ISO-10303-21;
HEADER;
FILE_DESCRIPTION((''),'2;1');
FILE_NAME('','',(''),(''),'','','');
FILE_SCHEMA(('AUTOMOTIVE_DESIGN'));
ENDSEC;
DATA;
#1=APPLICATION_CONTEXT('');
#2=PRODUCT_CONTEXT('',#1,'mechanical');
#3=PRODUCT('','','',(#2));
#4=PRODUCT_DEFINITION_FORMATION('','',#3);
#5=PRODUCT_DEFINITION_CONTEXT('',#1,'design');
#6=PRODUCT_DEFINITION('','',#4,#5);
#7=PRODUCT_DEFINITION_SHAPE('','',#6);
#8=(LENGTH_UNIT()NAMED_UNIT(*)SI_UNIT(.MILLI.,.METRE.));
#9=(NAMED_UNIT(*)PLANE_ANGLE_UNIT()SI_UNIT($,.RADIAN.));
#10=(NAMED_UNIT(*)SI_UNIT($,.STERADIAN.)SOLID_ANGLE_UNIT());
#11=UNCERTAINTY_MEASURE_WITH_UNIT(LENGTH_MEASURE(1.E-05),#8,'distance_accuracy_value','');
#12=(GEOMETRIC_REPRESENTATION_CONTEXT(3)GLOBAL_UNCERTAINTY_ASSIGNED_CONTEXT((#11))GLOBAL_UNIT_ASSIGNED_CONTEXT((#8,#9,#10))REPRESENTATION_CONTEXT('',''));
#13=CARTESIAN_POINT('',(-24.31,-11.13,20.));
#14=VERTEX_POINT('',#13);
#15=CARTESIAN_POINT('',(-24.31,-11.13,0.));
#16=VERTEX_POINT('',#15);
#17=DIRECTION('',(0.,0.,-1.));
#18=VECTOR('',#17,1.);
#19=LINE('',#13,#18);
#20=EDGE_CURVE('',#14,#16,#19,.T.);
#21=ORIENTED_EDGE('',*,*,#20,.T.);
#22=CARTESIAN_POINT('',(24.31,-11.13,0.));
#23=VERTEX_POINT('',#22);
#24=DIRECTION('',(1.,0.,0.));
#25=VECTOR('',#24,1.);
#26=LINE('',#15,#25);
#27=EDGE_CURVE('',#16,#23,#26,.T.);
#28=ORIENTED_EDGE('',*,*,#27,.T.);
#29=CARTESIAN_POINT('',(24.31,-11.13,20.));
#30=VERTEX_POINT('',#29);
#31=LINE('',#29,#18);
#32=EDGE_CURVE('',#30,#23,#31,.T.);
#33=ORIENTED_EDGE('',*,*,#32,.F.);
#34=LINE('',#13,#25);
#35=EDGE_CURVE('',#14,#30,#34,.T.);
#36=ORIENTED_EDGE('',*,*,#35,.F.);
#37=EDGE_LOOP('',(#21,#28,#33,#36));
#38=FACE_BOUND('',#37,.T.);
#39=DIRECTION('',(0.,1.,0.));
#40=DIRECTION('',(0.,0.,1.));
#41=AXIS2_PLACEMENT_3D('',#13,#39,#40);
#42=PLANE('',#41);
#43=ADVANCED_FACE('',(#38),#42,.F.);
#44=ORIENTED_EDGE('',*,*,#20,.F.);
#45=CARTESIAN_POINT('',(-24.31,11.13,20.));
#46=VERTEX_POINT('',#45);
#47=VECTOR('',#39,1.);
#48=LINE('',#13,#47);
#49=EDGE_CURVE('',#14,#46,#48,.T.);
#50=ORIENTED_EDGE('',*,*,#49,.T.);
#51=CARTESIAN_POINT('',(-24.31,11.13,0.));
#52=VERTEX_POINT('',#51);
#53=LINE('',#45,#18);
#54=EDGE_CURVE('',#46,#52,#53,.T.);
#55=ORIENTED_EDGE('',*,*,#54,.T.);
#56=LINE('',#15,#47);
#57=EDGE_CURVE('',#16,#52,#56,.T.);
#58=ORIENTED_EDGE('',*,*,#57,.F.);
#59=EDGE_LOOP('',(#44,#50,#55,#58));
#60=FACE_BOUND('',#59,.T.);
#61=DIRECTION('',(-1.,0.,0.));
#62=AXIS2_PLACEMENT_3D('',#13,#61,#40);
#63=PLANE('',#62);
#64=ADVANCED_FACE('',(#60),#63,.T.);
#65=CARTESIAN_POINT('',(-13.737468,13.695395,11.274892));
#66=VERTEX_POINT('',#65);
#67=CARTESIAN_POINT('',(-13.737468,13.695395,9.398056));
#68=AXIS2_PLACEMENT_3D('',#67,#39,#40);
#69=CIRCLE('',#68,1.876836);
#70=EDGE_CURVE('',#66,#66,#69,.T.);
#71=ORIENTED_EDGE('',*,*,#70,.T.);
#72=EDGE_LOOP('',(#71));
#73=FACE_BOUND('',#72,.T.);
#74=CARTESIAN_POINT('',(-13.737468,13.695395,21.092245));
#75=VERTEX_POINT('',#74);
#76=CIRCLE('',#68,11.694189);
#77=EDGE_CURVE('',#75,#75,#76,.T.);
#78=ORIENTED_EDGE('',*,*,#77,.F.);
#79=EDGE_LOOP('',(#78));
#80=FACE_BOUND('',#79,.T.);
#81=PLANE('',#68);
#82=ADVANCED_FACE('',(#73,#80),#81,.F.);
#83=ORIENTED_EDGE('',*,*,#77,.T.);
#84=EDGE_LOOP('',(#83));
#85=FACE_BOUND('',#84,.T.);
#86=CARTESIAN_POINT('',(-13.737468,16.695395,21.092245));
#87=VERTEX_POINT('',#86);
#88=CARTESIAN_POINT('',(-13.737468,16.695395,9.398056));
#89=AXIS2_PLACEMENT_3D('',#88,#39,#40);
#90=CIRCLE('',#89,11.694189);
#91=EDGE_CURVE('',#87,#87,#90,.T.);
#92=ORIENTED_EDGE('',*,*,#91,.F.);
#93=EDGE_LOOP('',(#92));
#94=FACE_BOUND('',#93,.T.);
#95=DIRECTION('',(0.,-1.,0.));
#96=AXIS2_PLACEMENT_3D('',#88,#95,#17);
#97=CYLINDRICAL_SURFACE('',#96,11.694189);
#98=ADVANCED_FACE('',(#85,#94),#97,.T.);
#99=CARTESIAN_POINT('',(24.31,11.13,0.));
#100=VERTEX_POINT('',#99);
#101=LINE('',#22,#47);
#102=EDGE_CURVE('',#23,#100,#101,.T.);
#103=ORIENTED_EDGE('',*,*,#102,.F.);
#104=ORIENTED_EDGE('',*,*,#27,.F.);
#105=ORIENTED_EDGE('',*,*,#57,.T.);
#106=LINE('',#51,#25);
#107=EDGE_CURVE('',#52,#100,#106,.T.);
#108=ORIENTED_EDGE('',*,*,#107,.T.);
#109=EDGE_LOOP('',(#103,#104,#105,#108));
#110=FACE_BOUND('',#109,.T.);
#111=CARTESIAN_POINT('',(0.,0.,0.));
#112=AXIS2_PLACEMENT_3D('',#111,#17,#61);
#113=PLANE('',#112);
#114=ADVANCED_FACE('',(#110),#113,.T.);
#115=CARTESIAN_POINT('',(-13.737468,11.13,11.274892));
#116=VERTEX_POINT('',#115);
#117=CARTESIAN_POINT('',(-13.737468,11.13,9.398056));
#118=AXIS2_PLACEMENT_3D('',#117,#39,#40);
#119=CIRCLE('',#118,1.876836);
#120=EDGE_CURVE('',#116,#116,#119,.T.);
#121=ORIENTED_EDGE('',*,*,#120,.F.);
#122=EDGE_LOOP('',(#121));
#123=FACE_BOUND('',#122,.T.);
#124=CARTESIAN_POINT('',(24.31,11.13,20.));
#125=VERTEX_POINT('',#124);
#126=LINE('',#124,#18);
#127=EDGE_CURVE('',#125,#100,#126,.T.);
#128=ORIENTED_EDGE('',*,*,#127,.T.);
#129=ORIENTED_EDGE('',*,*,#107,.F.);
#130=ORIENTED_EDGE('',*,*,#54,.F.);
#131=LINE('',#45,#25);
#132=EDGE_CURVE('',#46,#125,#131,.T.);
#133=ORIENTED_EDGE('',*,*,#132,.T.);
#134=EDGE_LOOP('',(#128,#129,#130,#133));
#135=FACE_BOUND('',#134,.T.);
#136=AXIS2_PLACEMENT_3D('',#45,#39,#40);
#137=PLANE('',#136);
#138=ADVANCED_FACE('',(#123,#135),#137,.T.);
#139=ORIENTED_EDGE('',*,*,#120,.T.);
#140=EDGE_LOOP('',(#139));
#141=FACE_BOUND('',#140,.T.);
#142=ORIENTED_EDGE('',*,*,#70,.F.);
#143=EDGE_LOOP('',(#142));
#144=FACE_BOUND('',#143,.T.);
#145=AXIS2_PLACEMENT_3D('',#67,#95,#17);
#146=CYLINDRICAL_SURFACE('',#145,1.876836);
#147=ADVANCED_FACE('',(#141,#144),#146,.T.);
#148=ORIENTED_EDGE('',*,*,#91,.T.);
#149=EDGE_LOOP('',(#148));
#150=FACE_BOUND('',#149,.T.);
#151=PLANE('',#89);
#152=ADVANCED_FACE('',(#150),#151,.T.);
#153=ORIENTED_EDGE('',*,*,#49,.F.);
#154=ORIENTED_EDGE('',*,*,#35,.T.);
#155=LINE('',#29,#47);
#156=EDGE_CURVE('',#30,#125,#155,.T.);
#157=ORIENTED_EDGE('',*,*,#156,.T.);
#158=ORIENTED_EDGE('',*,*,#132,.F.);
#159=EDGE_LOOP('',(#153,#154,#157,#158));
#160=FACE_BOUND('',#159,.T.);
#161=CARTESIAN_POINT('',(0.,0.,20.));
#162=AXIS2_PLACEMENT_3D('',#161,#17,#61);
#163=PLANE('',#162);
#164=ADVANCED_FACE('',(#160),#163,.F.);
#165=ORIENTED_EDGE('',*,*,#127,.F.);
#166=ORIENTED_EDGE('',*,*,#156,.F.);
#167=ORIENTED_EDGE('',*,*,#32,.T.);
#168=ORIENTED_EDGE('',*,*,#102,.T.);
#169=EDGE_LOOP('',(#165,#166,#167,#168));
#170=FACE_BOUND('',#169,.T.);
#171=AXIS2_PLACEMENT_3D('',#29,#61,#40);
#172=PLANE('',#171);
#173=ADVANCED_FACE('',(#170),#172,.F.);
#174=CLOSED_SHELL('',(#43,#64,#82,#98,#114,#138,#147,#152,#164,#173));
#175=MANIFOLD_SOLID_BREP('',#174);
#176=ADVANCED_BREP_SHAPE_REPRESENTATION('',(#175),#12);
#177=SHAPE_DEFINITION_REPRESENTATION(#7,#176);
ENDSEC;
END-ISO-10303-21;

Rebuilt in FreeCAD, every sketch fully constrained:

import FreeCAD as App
import Part
import Sketcher
from FreeCAD import Vector


def add_polygon(sketch, points):
    """Adds a closed chain of lines whose ends are joined by coincident constraints."""
    first, n = sketch.GeometryCount, len(points)
    for a, b in zip(points, points[1:] + points[:1]):
        sketch.addGeometry(Part.LineSegment(App.Vector(*a, 0), App.Vector(*b, 0)), False)
    for i in range(n):
        sketch.addConstraint(Sketcher.Constraint("Coincident", first + i, 2, first + (i + 1) % n, 1))

doc = App.newDocument("Part")
body = doc.addObject("PartDesign::Body", "Body")

sketch1 = doc.addObject("Sketcher::SketchObject", "Sketch")
body.addObject(sketch1)
sketch1.AttachmentSupport = (doc.XY_Plane, [""])
sketch1.MapMode = "FlatFace"
add_polygon(sketch1, [(-24, 11), (-24, -11), (24, -11), (24, 11)])
sketch1.addConstraint([
    Sketcher.Constraint("Vertical", 0),
    Sketcher.Constraint("Horizontal", 1),
    Sketcher.Constraint("Vertical", 2),
    Sketcher.Constraint("Horizontal", 3),
    Sketcher.Constraint("Symmetric", 0, 2, 2, 2, -1, 1),
    Sketcher.Constraint("DistanceX", 1, 1, 1, 2, 48.62),
    Sketcher.Constraint("DistanceY", 0, 2, 0, 1, 22.26),
])
pad1 = doc.addObject("PartDesign::Pad", "Pad")
body.addObject(pad1)
pad1.Profile = sketch1
pad1.Length = 20

sketch2 = doc.addObject("Sketcher::SketchObject", "Sketch001")
body.addObject(sketch2)
sketch2.AttachmentSupport = (doc.XZ_Plane, [""])
sketch2.MapMode = "FlatFace"
sketch2.AttachmentOffset = App.Placement(Vector(0, 0, -11.13), App.Rotation())
sketch2.addGeometry(Part.Circle(Vector(-13.7, 9.4, 0), Vector(0, 0, 1), 1.9), False)
sketch2.addConstraint([
    Sketcher.Constraint("Diameter", 0, 3.753671),
    Sketcher.Constraint("DistanceX", 0, 3, -1, 1, 13.737468),
    Sketcher.Constraint("DistanceY", -1, 1, 0, 3, 9.398056),
])
pad2 = doc.addObject("PartDesign::Pad", "Pad001")
body.addObject(pad2)
pad2.Profile = sketch2
pad2.Length = 2.565395
pad2.Reversed = True

sketch3 = doc.addObject("Sketcher::SketchObject", "Sketch002")
body.addObject(sketch3)
sketch3.AttachmentSupport = (doc.XZ_Plane, [""])
sketch3.MapMode = "FlatFace"
sketch3.AttachmentOffset = App.Placement(Vector(0, 0, -13.695395), App.Rotation())
sketch3.addGeometry(Part.Circle(Vector(-14, 9, 0), Vector(0, 0, 1), 12), False)
sketch3.addConstraint([
    Sketcher.Constraint("Diameter", 0, 23.388378),
    Sketcher.Constraint("DistanceX", 0, 3, -1, 1, 13.737468),
    Sketcher.Constraint("DistanceY", -1, 1, 0, 3, 9.398056),
])
pad3 = doc.addObject("PartDesign::Pad", "Pad002")
body.addObject(pad3)
pad3.Profile = sketch3
pad3.Length = 3
pad3.Reversed = True

doc.recompute()
